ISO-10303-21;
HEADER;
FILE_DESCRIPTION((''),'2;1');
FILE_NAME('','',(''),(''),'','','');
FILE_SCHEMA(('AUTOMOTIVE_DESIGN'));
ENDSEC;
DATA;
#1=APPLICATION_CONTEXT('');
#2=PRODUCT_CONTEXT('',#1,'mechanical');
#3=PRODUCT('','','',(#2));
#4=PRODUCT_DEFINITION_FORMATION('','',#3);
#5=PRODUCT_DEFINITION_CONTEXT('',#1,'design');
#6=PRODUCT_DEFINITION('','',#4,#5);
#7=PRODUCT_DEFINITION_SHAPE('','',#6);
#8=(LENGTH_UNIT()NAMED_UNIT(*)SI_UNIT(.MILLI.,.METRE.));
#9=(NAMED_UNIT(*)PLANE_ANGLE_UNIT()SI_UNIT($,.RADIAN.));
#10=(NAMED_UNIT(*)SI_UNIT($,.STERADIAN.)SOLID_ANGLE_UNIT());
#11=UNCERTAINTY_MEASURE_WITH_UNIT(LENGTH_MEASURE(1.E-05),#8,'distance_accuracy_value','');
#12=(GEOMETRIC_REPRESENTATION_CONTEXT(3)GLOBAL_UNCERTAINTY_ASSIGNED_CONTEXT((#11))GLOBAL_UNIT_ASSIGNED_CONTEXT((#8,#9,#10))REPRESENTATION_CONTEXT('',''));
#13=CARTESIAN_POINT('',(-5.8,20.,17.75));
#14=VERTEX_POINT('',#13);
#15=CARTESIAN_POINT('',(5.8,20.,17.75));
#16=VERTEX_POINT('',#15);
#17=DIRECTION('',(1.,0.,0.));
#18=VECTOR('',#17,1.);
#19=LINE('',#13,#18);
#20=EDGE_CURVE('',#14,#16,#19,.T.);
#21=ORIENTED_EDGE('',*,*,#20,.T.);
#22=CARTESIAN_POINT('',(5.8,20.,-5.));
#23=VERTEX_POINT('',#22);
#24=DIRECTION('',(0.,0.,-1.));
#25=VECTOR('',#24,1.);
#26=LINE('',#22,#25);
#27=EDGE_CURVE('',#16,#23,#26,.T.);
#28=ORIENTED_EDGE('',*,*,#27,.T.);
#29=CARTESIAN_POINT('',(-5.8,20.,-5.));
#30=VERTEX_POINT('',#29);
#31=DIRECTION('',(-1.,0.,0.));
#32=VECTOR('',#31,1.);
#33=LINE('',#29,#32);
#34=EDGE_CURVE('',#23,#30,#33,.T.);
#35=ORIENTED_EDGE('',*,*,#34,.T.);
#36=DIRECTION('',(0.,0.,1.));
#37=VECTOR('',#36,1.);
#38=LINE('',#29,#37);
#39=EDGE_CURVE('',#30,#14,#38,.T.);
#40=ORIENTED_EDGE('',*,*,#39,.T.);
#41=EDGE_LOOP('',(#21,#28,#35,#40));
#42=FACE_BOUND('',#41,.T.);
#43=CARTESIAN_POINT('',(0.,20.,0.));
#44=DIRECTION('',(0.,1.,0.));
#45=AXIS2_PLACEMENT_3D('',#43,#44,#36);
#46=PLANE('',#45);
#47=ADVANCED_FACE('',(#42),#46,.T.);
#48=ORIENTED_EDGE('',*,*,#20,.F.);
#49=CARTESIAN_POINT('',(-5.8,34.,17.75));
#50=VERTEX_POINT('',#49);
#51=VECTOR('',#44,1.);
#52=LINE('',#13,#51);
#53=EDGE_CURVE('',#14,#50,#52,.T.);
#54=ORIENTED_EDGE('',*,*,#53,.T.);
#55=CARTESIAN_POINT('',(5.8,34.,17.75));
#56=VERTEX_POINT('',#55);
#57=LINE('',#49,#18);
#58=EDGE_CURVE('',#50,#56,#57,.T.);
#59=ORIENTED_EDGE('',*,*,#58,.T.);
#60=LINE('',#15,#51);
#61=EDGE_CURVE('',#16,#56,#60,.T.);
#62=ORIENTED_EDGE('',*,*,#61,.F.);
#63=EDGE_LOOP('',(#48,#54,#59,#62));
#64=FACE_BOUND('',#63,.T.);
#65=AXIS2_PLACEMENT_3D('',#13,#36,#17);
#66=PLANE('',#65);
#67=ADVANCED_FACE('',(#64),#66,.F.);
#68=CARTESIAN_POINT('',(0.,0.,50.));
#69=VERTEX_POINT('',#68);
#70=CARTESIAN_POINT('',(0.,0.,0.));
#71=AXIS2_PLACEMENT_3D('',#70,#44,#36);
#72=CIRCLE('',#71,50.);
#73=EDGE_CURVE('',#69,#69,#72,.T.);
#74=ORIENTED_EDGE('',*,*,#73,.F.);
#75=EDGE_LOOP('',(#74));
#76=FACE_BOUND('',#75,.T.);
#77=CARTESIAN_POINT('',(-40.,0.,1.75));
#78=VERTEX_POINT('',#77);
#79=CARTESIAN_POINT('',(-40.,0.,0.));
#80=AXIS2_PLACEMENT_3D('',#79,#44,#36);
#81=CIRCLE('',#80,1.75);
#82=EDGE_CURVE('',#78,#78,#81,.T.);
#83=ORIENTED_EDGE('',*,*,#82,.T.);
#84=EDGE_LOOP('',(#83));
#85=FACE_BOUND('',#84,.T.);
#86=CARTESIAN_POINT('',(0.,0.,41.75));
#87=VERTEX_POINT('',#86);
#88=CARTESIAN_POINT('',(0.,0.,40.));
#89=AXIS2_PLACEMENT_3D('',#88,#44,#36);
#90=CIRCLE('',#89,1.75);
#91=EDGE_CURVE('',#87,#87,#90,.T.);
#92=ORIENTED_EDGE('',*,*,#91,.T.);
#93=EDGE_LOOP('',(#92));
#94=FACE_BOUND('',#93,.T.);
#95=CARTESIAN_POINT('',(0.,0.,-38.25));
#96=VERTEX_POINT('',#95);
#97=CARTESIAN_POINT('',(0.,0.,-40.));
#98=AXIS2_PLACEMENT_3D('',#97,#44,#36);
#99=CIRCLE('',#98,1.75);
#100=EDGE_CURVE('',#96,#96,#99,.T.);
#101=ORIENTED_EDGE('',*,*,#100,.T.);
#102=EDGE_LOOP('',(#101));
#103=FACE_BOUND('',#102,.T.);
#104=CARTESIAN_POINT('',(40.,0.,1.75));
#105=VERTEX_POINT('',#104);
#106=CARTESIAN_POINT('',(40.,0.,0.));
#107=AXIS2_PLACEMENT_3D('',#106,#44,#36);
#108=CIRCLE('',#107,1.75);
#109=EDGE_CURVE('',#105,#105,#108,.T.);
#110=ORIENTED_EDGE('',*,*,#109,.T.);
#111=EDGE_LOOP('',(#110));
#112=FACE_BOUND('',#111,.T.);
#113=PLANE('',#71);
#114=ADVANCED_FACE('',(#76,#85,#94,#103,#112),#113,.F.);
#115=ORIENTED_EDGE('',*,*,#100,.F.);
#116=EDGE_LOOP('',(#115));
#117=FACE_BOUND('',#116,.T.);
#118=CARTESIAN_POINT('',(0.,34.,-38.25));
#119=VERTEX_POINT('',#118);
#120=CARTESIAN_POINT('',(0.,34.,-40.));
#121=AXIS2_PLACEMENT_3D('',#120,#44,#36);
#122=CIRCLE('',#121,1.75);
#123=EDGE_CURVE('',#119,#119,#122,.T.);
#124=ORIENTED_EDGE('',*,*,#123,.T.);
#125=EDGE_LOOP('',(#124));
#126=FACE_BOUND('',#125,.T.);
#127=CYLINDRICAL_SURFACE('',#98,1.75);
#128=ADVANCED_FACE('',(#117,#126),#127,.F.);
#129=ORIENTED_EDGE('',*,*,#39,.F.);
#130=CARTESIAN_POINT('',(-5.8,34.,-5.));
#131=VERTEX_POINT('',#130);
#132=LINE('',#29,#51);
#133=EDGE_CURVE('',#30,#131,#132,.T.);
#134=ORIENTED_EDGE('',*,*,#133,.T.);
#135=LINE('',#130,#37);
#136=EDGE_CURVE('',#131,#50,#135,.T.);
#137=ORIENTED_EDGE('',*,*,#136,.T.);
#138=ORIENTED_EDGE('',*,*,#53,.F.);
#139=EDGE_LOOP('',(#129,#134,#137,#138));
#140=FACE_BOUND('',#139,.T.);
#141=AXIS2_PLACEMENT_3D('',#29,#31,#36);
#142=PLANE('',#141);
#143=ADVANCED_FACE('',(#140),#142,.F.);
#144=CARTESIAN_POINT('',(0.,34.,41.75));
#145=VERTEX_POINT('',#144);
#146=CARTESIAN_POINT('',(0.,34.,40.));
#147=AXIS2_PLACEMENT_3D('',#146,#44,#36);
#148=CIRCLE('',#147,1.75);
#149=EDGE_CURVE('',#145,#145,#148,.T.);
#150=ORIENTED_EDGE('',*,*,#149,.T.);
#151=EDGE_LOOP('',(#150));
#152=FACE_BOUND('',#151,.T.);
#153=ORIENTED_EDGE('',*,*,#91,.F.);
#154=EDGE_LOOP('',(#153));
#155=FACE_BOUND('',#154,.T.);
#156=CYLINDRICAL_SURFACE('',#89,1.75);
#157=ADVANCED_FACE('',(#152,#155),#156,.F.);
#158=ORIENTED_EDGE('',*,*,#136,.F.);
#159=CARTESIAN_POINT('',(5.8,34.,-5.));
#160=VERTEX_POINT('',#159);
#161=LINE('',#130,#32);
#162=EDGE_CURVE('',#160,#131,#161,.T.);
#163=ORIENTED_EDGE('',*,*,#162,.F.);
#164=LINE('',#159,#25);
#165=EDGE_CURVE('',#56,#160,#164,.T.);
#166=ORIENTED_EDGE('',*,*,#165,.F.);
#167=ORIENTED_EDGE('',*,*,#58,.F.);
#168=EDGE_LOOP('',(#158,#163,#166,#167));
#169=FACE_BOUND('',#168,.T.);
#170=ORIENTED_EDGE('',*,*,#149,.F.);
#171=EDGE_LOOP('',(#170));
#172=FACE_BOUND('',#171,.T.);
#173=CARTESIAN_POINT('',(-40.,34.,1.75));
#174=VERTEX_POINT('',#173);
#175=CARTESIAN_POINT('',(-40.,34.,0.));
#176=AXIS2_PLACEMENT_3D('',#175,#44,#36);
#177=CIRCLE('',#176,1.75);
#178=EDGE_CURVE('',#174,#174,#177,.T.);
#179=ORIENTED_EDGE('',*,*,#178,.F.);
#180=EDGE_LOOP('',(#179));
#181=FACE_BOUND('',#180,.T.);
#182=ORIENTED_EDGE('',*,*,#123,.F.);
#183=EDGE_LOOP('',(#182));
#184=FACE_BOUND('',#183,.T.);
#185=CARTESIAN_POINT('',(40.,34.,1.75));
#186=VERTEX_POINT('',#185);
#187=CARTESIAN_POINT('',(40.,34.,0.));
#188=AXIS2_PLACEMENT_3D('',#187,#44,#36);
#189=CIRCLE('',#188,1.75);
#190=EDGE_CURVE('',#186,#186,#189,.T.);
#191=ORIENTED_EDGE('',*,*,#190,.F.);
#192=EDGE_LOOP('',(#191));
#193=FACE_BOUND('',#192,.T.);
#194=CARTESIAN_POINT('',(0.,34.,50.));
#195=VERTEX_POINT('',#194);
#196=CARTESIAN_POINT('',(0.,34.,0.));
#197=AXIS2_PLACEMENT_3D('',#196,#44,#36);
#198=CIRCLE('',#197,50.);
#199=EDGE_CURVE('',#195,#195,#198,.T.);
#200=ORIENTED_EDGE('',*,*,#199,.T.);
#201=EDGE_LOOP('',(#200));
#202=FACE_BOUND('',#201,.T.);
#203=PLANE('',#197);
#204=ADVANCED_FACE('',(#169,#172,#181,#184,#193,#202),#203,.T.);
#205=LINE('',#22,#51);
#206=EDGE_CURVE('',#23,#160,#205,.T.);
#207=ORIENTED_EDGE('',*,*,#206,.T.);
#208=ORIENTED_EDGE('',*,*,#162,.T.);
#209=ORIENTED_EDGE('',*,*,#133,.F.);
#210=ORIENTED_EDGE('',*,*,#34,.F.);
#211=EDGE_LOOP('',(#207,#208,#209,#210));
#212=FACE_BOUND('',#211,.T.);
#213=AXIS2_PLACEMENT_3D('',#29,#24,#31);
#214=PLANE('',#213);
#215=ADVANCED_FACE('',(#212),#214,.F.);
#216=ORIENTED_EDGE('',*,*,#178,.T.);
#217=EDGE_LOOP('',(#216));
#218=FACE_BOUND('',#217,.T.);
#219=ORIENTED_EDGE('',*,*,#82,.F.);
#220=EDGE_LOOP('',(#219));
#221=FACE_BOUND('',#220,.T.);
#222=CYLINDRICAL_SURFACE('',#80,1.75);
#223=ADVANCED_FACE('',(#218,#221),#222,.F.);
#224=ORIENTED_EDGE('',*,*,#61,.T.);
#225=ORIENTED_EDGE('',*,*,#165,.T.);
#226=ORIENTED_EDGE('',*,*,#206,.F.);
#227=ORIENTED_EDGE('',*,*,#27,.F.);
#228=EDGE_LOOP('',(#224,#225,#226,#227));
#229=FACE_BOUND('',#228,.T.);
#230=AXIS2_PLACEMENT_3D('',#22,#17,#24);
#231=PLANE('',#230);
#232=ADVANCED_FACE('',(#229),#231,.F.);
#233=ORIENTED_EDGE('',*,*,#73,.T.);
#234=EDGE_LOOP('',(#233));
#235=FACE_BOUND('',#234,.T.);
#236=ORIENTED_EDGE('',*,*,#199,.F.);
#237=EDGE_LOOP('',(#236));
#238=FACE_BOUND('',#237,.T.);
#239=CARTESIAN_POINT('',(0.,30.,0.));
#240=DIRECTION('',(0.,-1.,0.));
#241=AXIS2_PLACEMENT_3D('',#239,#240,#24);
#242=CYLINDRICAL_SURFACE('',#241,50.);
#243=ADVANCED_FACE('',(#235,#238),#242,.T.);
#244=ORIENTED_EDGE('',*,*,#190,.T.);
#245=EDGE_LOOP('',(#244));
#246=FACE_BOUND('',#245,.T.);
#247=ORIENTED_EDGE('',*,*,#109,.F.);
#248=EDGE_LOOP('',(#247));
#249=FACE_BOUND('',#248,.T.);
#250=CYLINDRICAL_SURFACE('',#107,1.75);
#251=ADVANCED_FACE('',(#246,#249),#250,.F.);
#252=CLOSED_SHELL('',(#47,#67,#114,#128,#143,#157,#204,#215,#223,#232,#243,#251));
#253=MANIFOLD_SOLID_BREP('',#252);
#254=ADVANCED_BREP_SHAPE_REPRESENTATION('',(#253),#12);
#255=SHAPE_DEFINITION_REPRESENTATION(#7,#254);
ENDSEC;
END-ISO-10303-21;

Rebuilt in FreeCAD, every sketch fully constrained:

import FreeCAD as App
import Part
import Sketcher

V = App.Vector


def add_polygon(sketch, points):
    """Adds a closed chain of lines whose ends are joined by coincident constraints."""
    first, n = sketch.GeometryCount, len(points)
    for a, b in zip(points, points[1:] + points[:1]):
        sketch.addGeometry(Part.LineSegment(App.Vector(*a, 0), App.Vector(*b, 0)), False)
    for i in range(n):
        sketch.addConstraint(Sketcher.Constraint("Coincident", first + i, 2, first + (i + 1) % n, 1))

doc = App.newDocument("Part")
params = doc.addObject("Spreadsheet::Sheet", "Params")
for row, (alias, value) in enumerate([
    ("sketch1_diameter", "100 mm"),
    ("pad1_length", "30 mm"),
    ("sketch2_diameter", "100 mm"),
    ("pad2_length", "4 mm"),
    ("sketch3_width", "11.6 mm"),
    ("sketch3_height", "22.75 mm"),
    ("pocket1_length", "14 mm"),
    ("sketch4_diameter", "3.5 mm"),
], start=1):
    params.set(f"A{row}", alias)
    params.set(f"B{row}", "=" + value)
    params.setAlias(f"B{row}", alias)

body = doc.addObject("PartDesign::Body", "Body")

# Sketch on XZ plane
sketch1 = body.newObject("Sketcher::SketchObject", "Sketch")
sketch1.AttachmentSupport = (doc.getObject("XZ_Plane"), [""])
sketch1.MapMode = "FlatFace"
sketch1.addGeometry(Part.Circle(V(0, 0, 0), V(0, 0, 1), 50), False)
sketch1.addConstraint([
    Sketcher.Constraint("Coincident", 0, 3, -1, 1),
    Sketcher.Constraint("Diameter", 0, 100.0),
])
sketch1.setExpression("Constraints[1]", "Params.sketch1_diameter")
pad1 = body.newObject("PartDesign::Pad", "Pad")
pad1.Profile = sketch1
pad1.setExpression("Length", "Params.pad1_length")
pad1.Reversed = True

# Sketch on XZ plane
sketch2 = body.newObject("Sketcher::SketchObject", "Sketch001")
sketch2.AttachmentSupport = (doc.getObject("XZ_Plane"), [""])
sketch2.MapMode = "FlatFace"
sketch2.AttachmentOffset = App.Placement(V(0, 0, -30), App.Rotation())
sketch2.addGeometry(Part.Circle(V(0, 0, 0), V(0, 0, 1), 50), False)
sketch2.addConstraint([
    Sketcher.Constraint("Coincident", 0, 3, -1, 1),
    Sketcher.Constraint("Diameter", 0, 100.0),
])
sketch2.setExpression("Constraints[1]", "Params.sketch2_diameter")
pad2 = body.newObject("PartDesign::Pad", "Pad001")
pad2.Profile = sketch2
pad2.setExpression("Length", "Params.pad2_length")
pad2.Reversed = True

# Sketch on XZ plane
sketch3 = body.newObject("Sketcher::SketchObject", "Sketch002")
sketch3.AttachmentSupport = (doc.getObject("XZ_Plane"), [""])
sketch3.MapMode = "FlatFace"
sketch3.AttachmentOffset = App.Placement(V(0, 0, -34), App.Rotation())
add_polygon(sketch3, [(-6, -5), (-6, 18), (6, 18), (6, -5)])  # lines 0-3
sketch3.addConstraint([
    Sketcher.Constraint("Vertical", 0),
    Sketcher.Constraint("Horizontal", 1),
    Sketcher.Constraint("Vertical", 2),
    Sketcher.Constraint("Horizontal", 3),
    Sketcher.Constraint("DistanceX", 1, 1, 1, 2, 11.6),
    Sketcher.Constraint("DistanceY", 2, 2, -1, 1, 5.0),
    Sketcher.Constraint("DistanceY", 0, 1, 0, 2, 22.75),
    Sketcher.Constraint("DistanceX", 0, 2, -1, 1, 5.8),
])
sketch3.setExpression("Constraints[8]", "Params.sketch3_width")
sketch3.setExpression("Constraints[10]", "Params.sketch3_height")
pocket1 = body.newObject("PartDesign::Pocket", "Pocket")
pocket1.Profile = sketch3
pocket1.setExpression("Length", "Params.pocket1_length")
pocket1.Reversed = True

# Sketch on XZ plane
sketch4 = body.newObject("Sketcher::SketchObject", "Sketch003")
sketch4.AttachmentSupport = (doc.getObject("XZ_Plane"), [""])
sketch4.MapMode = "FlatFace"
sketch4.AttachmentOffset = App.Placement(V(0, 0, -34), App.Rotation())
sketch4.addGeometry([
    Part.Circle(V(0, -40, 0), V(0, 0, 1), 1.8),
    Part.Circle(V(40, 0, 0), V(0, 0, 1), 1.8),
    Part.Circle(V(0, 40, 0), V(0, 0, 1), 1.8),
    Part.Circle(V(-40, 0, 0), V(0, 0, 1), 1.8),
], False)
sketch4.addConstraint([
    Sketcher.Constraint("Equal", 0, 1),
    Sketcher.Constraint("Equal", 1, 2),
    Sketcher.Constraint("Equal", 2, 3),
    Sketcher.Constraint("Symmetric", 0, 3, 2, 3, -1, 1),
    Sketcher.Constraint("Symmetric", 1, 3, 3, 3, -1, 1),
    Sketcher.Constraint("PointOnObject", 0, 3, -2),
    Sketcher.Constraint("PointOnObject", 1, 3, -1),
    Sketcher.Constraint("Diameter", 0, 3.5),
    Sketcher.Constraint("DistanceY", 0, 3, -1, 1, 40.0),
    Sketcher.Constraint("DistanceX", -1, 1, 1, 3, 40.0),
])
sketch4.setExpression("Constraints[7]", "Params.sketch4_diameter")
pocket2 = body.newObject("PartDesign::Pocket", "Pocket001")
pocket2.Profile = sketch4
pocket2.Type = "ThroughAll"
pocket2.Reversed = True

doc.recompute()
